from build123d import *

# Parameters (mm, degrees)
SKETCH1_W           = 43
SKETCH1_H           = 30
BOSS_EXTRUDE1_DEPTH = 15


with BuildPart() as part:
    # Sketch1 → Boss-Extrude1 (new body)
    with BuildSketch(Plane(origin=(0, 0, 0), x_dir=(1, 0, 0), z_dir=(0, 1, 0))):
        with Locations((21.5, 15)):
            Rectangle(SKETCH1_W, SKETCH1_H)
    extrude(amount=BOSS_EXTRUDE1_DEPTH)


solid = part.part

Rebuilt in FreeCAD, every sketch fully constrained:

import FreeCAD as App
import Part
import Sketcher
from FreeCAD import Vector


def add_polygon(sketch, points):
    """Adds a closed chain of lines whose ends are joined by coincident constraints."""
    first, n = sketch.GeometryCount, len(points)
    for a, b in zip(points, points[1:] + points[:1]):
        sketch.addGeometry(Part.LineSegment(App.Vector(*a, 0), App.Vector(*b, 0)), False)
    for i in range(n):
        sketch.addConstraint(Sketcher.Constraint("Coincident", first + i, 2, first + (i + 1) % n, 1))

doc = App.newDocument("Part")
body = doc.addObject("PartDesign::Body", "Body")

sketch1 = body.newObject("Sketcher::SketchObject", "Sketch")
sketch1.AttachmentSupport = (doc.getObject("XZ_Plane"), [""])
sketch1.MapMode = "FlatFace"
add_polygon(sketch1, [(0, -30), (0, 0), (43, 0), (43, -30)])
sketch1.addConstraint(Sketcher.Constraint("Vertical", 0))
sketch1.addConstraint(Sketcher.Constraint("Horizontal", 1))
sketch1.addConstraint(Sketcher.Constraint("Vertical", 2))
sketch1.addConstraint(Sketcher.Constraint("Horizontal", 3))
sketch1.addConstraint(Sketcher.Constraint("Coincident", 0, 2, -1, 1))
sketch1.addConstraint(Sketcher.Constraint("DistanceX", 1, 1, 1, 2, 43.0))
sketch1.addConstraint(Sketcher.Constraint("DistanceY", 0, 1, 0, 2, 30.0))
pad1 = body.newObject("PartDesign::Pad", "Pad")
pad1.Profile = sketch1
pad1.Length = 15
pad1.Reversed = True

doc.recompute()
